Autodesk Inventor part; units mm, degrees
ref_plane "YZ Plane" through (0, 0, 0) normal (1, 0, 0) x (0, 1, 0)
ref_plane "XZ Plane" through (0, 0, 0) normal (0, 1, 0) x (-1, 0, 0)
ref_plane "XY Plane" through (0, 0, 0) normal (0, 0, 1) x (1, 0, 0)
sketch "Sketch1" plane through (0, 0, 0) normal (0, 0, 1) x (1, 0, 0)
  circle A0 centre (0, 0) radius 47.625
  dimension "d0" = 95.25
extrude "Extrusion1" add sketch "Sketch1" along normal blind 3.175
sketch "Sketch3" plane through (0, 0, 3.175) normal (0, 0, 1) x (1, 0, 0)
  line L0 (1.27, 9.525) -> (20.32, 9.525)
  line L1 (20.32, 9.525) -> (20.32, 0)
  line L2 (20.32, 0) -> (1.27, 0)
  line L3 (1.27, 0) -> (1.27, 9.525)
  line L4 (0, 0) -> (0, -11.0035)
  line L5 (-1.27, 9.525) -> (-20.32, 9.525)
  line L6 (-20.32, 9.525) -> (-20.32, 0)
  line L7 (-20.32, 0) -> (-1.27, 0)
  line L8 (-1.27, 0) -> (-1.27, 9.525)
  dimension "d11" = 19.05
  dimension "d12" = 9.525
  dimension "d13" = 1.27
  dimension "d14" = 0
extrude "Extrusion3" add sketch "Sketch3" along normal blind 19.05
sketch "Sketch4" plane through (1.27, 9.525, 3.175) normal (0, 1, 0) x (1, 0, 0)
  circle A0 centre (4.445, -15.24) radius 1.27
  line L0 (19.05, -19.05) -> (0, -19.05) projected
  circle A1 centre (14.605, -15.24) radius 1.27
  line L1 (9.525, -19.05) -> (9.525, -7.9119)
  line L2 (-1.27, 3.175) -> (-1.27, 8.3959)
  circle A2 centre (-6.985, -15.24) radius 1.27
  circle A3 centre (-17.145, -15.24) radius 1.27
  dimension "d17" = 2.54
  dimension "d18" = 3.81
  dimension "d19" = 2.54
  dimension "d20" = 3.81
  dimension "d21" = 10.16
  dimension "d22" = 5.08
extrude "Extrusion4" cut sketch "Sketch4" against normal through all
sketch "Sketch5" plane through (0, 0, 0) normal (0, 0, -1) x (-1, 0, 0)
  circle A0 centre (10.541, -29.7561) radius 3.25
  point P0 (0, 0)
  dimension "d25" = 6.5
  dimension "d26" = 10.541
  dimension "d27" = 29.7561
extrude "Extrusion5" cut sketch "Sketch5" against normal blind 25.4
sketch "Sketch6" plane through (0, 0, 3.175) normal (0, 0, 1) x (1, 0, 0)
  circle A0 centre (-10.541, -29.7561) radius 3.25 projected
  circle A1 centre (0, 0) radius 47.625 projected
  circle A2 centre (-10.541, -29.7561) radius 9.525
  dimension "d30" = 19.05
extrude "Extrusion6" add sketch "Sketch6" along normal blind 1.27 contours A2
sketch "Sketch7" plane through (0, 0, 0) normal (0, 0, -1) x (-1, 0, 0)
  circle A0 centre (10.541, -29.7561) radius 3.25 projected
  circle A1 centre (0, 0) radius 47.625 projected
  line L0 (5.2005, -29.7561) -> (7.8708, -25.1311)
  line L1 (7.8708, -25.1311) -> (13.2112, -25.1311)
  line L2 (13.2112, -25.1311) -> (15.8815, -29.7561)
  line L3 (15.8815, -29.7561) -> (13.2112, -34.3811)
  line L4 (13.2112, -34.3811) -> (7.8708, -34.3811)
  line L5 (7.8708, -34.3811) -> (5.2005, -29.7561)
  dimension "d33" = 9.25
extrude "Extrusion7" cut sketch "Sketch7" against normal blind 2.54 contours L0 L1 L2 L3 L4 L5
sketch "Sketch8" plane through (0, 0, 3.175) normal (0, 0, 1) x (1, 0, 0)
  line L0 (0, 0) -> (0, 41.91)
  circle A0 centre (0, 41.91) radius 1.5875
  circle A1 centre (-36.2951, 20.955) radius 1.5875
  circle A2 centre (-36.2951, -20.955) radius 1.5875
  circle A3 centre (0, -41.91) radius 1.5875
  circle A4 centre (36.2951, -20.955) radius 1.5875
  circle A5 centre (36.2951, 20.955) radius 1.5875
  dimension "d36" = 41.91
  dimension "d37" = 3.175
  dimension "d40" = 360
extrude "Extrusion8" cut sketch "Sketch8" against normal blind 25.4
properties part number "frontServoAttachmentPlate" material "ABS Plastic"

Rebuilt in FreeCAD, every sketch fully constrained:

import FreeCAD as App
import Part
import Sketcher
from FreeCAD import Vector
Q = App.Units.Quantity


def add_polygon(sketch, points):
    """Adds a closed chain of lines whose ends are joined by coincident constraints."""
    first, n = sketch.GeometryCount, len(points)
    for a, b in zip(points, points[1:] + points[:1]):
        sketch.addGeometry(Part.LineSegment(App.Vector(*a, 0), App.Vector(*b, 0)), False)
    for i in range(n):
        sketch.addConstraint(Sketcher.Constraint("Coincident", first + i, 2, first + (i + 1) % n, 1))

doc = App.newDocument("Part")
body = doc.addObject("PartDesign::Body", "Body")

sketch1 = doc.addObject("Sketcher::SketchObject", "Sketch")
body.addObject(sketch1)
sketch1.AttachmentSupport = (doc.XY_Plane, [""])
sketch1.MapMode = "FlatFace"
sketch1.addGeometry(Part.Circle(Vector(0, 0, 0), Vector(0, 0, 1), 48), False)
sketch1.addConstraint(Sketcher.Constraint("Coincident", 0, 3, -1, 1))
sketch1.addConstraint(Sketcher.Constraint("Diameter", 0, Q("3.75 in")))
pad1 = doc.addObject("PartDesign::Pad", "Pad")
body.addObject(pad1)
pad1.Profile = sketch1
pad1.Length = Q("0.125 in")

sketch2 = doc.addObject("Sketcher::SketchObject", "Sketch001")
body.addObject(sketch2)
sketch2.AttachmentSupport = (doc.XY_Plane, [""])
sketch2.MapMode = "FlatFace"
sketch2.AttachmentOffset = App.Placement(Vector(0, 0, 0.125 * 25.4), App.Rotation())
add_polygon(sketch2, [(20, 10), (1, 10), (1, 0), (20, 0)])
add_polygon(sketch2, [(-1, 0), (-1, 10), (-20, 10), (-20, 0)])
sketch2.addConstraint(Sketcher.Constraint("Horizontal", 0))
sketch2.addConstraint(Sketcher.Constraint("Vertical", 1))
sketch2.addConstraint(Sketcher.Constraint("Horizontal", 2))
sketch2.addConstraint(Sketcher.Constraint("Vertical", 3))
sketch2.addConstraint(Sketcher.Constraint("Vertical", 4))
sketch2.addConstraint(Sketcher.Constraint("Horizontal", 5))
sketch2.addConstraint(Sketcher.Constraint("Vertical", 6))
sketch2.addConstraint(Sketcher.Constraint("Horizontal", 7))
sketch2.addConstraint(Sketcher.Constraint("Symmetric", 2, 2, 6, 2, -1, 1))
sketch2.addConstraint(Sketcher.Constraint("Symmetric", 0, 2, 4, 2, -2))
sketch2.addConstraint(Sketcher.Constraint("PointOnObject", 1, 2, -1))
sketch2.addConstraint(Sketcher.Constraint("DistanceX", 0, 2, 0, 1, Q("0.75 in")))
sketch2.addConstraint(Sketcher.Constraint("DistanceY", 1, 2, 1, 1, Q("0.375 in")))
sketch2.addConstraint(Sketcher.Constraint("DistanceX", -1, 1, 0, 2, Q("0.05 in")))
pad2 = doc.addObject("PartDesign::Pad", "Pad001")
body.addObject(pad2)
pad2.Profile = sketch2
pad2.Length = Q("0.75 in")

sketch3 = doc.addObject("Sketcher::SketchObject", "Sketch002")
body.addObject(sketch3)
sketch3.AttachmentSupport = (doc.XZ_Plane, [""])
sketch3.MapMode = "FlatFace"
sketch3.AttachmentOffset = App.Placement(Vector(0, 0, -0.375 * 25.4), App.Rotation())
sketch3.addGeometry(Part.Circle(Vector(5.7, 18.4, 0), Vector(0, 0, 1), 1.3), False)
sketch3.addGeometry(Part.Circle(Vector(15.9, 18.4, 0), Vector(0, 0, 1), 1.3), False)
sketch3.addGeometry(Part.Circle(Vector(-5.7, 18.4, 0), Vector(0, 0, 1), 1.3), False)
sketch3.addGeometry(Part.Circle(Vector(-15.9, 18.4, 0), Vector(0, 0, 1), 1.3), False)
sketch3.addConstraint(Sketcher.Constraint("Equal", 0, 1))
sketch3.addConstraint(Sketcher.Constraint("Equal", 1, 2))
sketch3.addConstraint(Sketcher.Constraint("Equal", 2, 3))
sketch3.addConstraint(Sketcher.Constraint("Symmetric", 0, 3, 2, 3, -2))
sketch3.addConstraint(Sketcher.Constraint("Symmetric", 1, 3, 3, 3, -2))
sketch3.addConstraint(Sketcher.Constraint("Horizontal", 0, 3, 1, 3))
sketch3.addConstraint(Sketcher.Constraint("Diameter", 0, Q("0.1 in")))
sketch3.addConstraint(Sketcher.Constraint("DistanceX", 0, 3, 1, 3, Q("0.4 in")))
sketch3.addConstraint(Sketcher.Constraint("DistanceX", 2, 3, 0, 3, Q("0.45 in")))
sketch3.addConstraint(Sketcher.Constraint("DistanceY", -1, 1, 0, 3, Q("0.725 in")))
pocket1 = doc.addObject("PartDesign::Pocket", "Pocket")
body.addObject(pocket1)
pocket1.Profile = sketch3
pocket1.Type = "ThroughAll"
pocket1.Reversed = True

sketch4 = doc.addObject("Sketcher::SketchObject", "Sketch003")
body.addObject(sketch4)
sketch4.AttachmentSupport = (doc.XY_Plane, [""])
sketch4.MapMode = "FlatFace"
sketch4.addGeometry(Part.Circle(Vector(-10.5, -29.8, 0), Vector(0, 0, 1), 3.2), False)
sketch4.addConstraint(Sketcher.Constraint("Diameter", 0, Q("0.2559 in")))
sketch4.addConstraint(Sketcher.Constraint("DistanceX", 0, 3, -1, 1, Q("0.415 in")))
sketch4.addConstraint(Sketcher.Constraint("DistanceY", 0, 3, -1, 1, Q("1.1715 in")))
pocket2 = doc.addObject("PartDesign::Pocket", "Pocket001")
body.addObject(pocket2)
pocket2.Profile = sketch4
pocket2.Length = Q("1 in")
pocket2.Reversed = True

sketch5 = doc.addObject("Sketcher::SketchObject", "Sketch004")
body.addObject(sketch5)
sketch5.AttachmentSupport = (doc.XY_Plane, [""])
sketch5.MapMode = "FlatFace"
sketch5.AttachmentOffset = App.Placement(Vector(0, 0, 0.125 * 25.4), App.Rotation())
sketch5.addGeometry(Part.Circle(Vector(-10.5, -29.8, 0), Vector(0, 0, 1), 9.5), False)
sketch5.addGeometry(Part.Circle(Vector(-10.5, -29.8, 0), Vector(0, 0, 1), 3.2), False)
sketch5.addConstraint(Sketcher.Constraint("Coincident", 1, 3, 0, 3))
sketch5.addConstraint(Sketcher.Constraint("Diameter", 0, Q("0.75 in")))
sketch5.addConstraint(Sketcher.Constraint("Diameter", 1, Q("0.2559 in")))
sketch5.addConstraint(Sketcher.Constraint("DistanceX", 0, 3, -1, 1, Q("0.415 in")))
sketch5.addConstraint(Sketcher.Constraint("DistanceY", 0, 3, -1, 1, Q("1.1715 in")))
pad3 = doc.addObject("PartDesign::Pad", "Pad002")
body.addObject(pad3)
pad3.Profile = sketch5
pad3.Length = Q("0.05 in")

sketch6 = doc.addObject("Sketcher::SketchObject", "Sketch005")
body.addObject(sketch6)
sketch6.AttachmentSupport = (doc.XY_Plane, [""])
sketch6.MapMode = "FlatFace"
add_polygon(sketch6, [(-7.9, -25.1), (-5.2, -29.8), (-7.9, -34.4), (-13.2, -34.4), (-15.9, -29.8), (-13.2, -25.1)])
sketch6.addGeometry(Part.Circle(Vector(-10.5, -29.8, 0), Vector(0, 0, 1), 3.2), False)
sketch6.addConstraint(Sketcher.Constraint("Horizontal", 2))
sketch6.addConstraint(Sketcher.Constraint("Horizontal", 5))
sketch6.addConstraint(Sketcher.Constraint("Parallel", 0, 3))
sketch6.addConstraint(Sketcher.Constraint("Parallel", 1, 4))
sketch6.addConstraint(Sketcher.Constraint("Horizontal", 6, 3, 0, 2))
sketch6.addConstraint(Sketcher.Constraint("Horizontal", 0, 2, 3, 2))
sketch6.addConstraint(Sketcher.Constraint("Vertical", 2, 2, 4, 2))
sketch6.addConstraint(Sketcher.Constraint("Vertical", 1, 2, 5, 2))
sketch6.addConstraint(Sketcher.Constraint("Angle", 0, Q("-59.9995 deg")))
sketch6.addConstraint(Sketcher.Constraint("Diameter", 6, Q("0.2559 in")))
sketch6.addConstraint(Sketcher.Constraint("DistanceY", 2, 2, 4, 2, 9.25))
sketch6.addConstraint(Sketcher.Constraint("DistanceX", 6, 3, -1, 1, Q("0.415 in")))
sketch6.addConstraint(Sketcher.Constraint("DistanceX", 2, 2, 2, 1, 5.3404))
sketch6.addConstraint(Sketcher.Constraint("DistanceY", 6, 3, -1, 1, Q("1.1715 in")))
sketch6.addConstraint(Sketcher.Constraint("DistanceX", 0, 2, -1, 1, 5.2005))
pocket3 = doc.addObject("PartDesign::Pocket", "Pocket002")
body.addObject(pocket3)
pocket3.Profile = sketch6
pocket3.Length = Q("0.1 in")
pocket3.Reversed = True

sketch7 = doc.addObject("Sketcher::SketchObject", "Sketch006")
body.addObject(sketch7)
sketch7.AttachmentSupport = (doc.XY_Plane, [""])
sketch7.MapMode = "FlatFace"
sketch7.AttachmentOffset = App.Placement(Vector(0, 0, 0.125 * 25.4), App.Rotation())
sketch7.addGeometry(Part.Circle(Vector(0, 41.9, 0), Vector(0, 0, 1), 1.6), False)
sketch7.addGeometry(Part.Circle(Vector(-36.3, 21, 0), Vector(0, 0, 1), 1.6), False)
sketch7.addGeometry(Part.Circle(Vector(-36.3, -21, 0), Vector(0, 0, 1), 1.6), False)
sketch7.addGeometry(Part.Circle(Vector(0, -41.9, 0), Vector(0, 0, 1), 1.6), False)
sketch7.addGeometry(Part.Circle(Vector(36.3, -21, 0), Vector(0, 0, 1), 1.6), False)
sketch7.addGeometry(Part.Circle(Vector(36.3, 21, 0), Vector(0, 0, 1), 1.6), False)
sketch7.addConstraint(Sketcher.Constraint("Equal", 0, 1))
sketch7.addConstraint(Sketcher.Constraint("Equal", 1, 2))
sketch7.addConstraint(Sketcher.Constraint("Equal", 2, 3))
sketch7.addConstraint(Sketcher.Constraint("Equal", 3, 4))
sketch7.addConstraint(Sketcher.Constraint("Equal", 4, 5))
sketch7.addConstraint(Sketcher.Constraint("Symmetric", 0, 3, 3, 3, -1, 1))
sketch7.addConstraint(Sketcher.Constraint("Symmetric", 1, 3, 4, 3, -1, 1))
sketch7.addConstraint(Sketcher.Constraint("Symmetric", 2, 3, 5, 3, -1, 1))
sketch7.addConstraint(Sketcher.Constraint("Symmetric", 2, 3, 4, 3, -2))
sketch7.addConstraint(Sketcher.Constraint("PointOnObject", 0, 3, -2))
sketch7.addConstraint(Sketcher.Constraint("Diameter", 0, Q("0.125 in")))
sketch7.addConstraint(Sketcher.Constraint("DistanceY", -1, 1, 0, 3, Q("1.65 in")))
sketch7.addConstraint(Sketcher.Constraint("DistanceY", 2, 3, 1, 3, Q("1.65 in")))
sketch7.addConstraint(Sketcher.Constraint("DistanceX", 1, 3, -1, 1, 36.295))
pocket4 = doc.addObject("PartDesign::Pocket", "Pocket003")
body.addObject(pocket4)
pocket4.Profile = sketch7
pocket4.Length = Q("1 in")

doc.recompute()
